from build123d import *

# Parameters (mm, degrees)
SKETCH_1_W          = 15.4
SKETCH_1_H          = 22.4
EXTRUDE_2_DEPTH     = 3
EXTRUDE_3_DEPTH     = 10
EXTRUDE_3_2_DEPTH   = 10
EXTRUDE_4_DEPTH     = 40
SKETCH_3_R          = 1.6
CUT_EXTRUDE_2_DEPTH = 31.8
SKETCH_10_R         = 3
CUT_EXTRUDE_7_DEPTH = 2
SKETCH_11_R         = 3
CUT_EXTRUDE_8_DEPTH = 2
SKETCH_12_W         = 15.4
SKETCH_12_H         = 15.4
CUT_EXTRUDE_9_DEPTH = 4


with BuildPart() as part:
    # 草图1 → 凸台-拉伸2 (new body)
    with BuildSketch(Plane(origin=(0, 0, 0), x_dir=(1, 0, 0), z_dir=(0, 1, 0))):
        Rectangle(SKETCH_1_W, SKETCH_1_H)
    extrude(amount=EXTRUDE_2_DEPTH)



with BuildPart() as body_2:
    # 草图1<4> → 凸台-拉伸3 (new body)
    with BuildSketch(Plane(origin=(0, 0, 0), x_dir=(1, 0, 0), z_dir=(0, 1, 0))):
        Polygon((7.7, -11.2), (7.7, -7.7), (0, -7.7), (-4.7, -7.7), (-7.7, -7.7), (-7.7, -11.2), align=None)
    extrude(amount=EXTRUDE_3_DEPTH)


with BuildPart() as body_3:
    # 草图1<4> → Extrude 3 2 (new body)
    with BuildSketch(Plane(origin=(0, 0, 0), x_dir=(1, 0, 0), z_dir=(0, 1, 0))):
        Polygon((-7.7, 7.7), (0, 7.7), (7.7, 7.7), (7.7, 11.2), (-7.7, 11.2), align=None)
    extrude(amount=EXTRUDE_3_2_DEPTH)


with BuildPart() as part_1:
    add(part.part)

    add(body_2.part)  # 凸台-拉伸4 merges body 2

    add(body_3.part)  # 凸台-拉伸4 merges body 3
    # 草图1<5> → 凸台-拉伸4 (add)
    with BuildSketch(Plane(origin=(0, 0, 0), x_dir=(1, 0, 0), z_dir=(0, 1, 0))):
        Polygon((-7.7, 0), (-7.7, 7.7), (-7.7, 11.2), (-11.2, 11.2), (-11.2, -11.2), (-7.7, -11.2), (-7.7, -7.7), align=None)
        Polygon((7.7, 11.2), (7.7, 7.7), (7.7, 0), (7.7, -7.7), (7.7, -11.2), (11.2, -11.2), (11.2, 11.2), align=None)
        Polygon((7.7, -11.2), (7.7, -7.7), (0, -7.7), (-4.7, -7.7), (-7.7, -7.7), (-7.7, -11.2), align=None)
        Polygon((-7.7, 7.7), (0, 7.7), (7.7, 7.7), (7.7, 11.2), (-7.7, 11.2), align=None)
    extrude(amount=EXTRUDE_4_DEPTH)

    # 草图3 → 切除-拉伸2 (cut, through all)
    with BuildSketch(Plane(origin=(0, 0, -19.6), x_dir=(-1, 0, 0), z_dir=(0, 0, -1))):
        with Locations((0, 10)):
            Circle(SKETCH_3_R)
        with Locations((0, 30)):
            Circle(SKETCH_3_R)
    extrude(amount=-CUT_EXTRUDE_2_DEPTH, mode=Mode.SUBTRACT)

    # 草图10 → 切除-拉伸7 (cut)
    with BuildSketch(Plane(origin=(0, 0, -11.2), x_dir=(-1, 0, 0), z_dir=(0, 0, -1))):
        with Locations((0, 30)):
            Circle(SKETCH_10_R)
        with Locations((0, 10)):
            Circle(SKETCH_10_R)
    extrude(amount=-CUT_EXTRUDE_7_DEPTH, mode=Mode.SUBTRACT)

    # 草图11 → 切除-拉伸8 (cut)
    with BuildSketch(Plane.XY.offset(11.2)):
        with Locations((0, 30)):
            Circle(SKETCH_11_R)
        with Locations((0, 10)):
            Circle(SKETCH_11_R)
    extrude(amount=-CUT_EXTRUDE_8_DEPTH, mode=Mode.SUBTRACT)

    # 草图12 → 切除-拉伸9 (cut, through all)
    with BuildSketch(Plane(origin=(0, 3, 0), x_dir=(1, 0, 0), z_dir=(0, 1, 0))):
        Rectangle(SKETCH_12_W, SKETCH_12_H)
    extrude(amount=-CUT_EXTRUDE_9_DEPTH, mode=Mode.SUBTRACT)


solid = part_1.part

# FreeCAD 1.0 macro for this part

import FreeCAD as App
import Part
import Sketcher


def add_polygon(sketch, points):
    """Adds a closed chain of lines whose ends are joined by coincident constraints."""
    first, n = sketch.GeometryCount, len(points)
    for a, b in zip(points, points[1:] + points[:1]):
        sketch.addGeometry(Part.LineSegment(App.Vector(*a, 0), App.Vector(*b, 0)), False)
    for i in range(n):
        sketch.addConstraint(Sketcher.Constraint("Coincident", first + i, 2, first + (i + 1) % n, 1))

doc = App.newDocument("Part")
body = doc.addObject("PartDesign::Body", "Body")

sketch1 = body.newObject("Sketcher::SketchObject", "Sketch")
sketch1.AttachmentSupport = (doc.getObject("XZ_Plane"), [""])
sketch1.MapMode = "FlatFace"
add_polygon(sketch1, [(-8, -11), (-8, 11), (8, 11), (8, -11)])
sketch1.addConstraint([
    Sketcher.Constraint("Vertical", 0),
    Sketcher.Constraint("Horizontal", 1),
    Sketcher.Constraint("Vertical", 2),
    Sketcher.Constraint("Horizontal", 3),
    Sketcher.Constraint("Symmetric", 0, 2, 2, 2, -1, 1),
    Sketcher.Constraint("DistanceX", 1, 1, 1, 2, 15.4),
    Sketcher.Constraint("DistanceY", 0, 1, 0, 2, 22.4),
])
pad1 = body.newObject("PartDesign::Pad", "Pad")
pad1.Profile = sketch1
pad1.Length = 3
pad1.Reversed = True
body2 = doc.addObject("PartDesign::Body", "Body001")

sketch2 = body2.newObject("Sketcher::SketchObject", "Sketch001")
sketch2.AttachmentSupport = (doc.getObject("XZ_Plane001"), [""])
sketch2.MapMode = "FlatFace"
add_polygon(sketch2, [(7.7, 11.2), (7.7, 7.7), (-7.7, 7.7), (-7.7, 11.2)])
sketch2.addConstraint([
    Sketcher.Constraint("Vertical", 0),
    Sketcher.Constraint("Horizontal", 1),
    Sketcher.Constraint("Vertical", 2),
    Sketcher.Constraint("Horizontal", 3),
    Sketcher.Constraint("DistanceX", 1, 2, 1, 1, 15.4),
    Sketcher.Constraint("DistanceY", 0, 2, 0, 1, 3.5),
    Sketcher.Constraint("DistanceX", -1, 1, 0, 2, 7.7),
    Sketcher.Constraint("DistanceY", -1, 1, 0, 2, 7.7),
])
pad2 = body2.newObject("PartDesign::Pad", "Pad001")
pad2.Profile = sketch2
pad2.Length = 10
pad2.Reversed = True
body3 = doc.addObject("PartDesign::Body", "Body002")

sketch3 = body3.newObject("Sketcher::SketchObject", "Sketch002")
sketch3.AttachmentSupport = (doc.getObject("XZ_Plane002"), [""])
sketch3.MapMode = "FlatFace"
add_polygon(sketch3, [(-7.7, -7.7), (7.7, -7.7), (7.7, -11.2), (-7.7, -11.2)])
sketch3.addConstraint([
    Sketcher.Constraint("Horizontal", 0),
    Sketcher.Constraint("Vertical", 1),
    Sketcher.Constraint("Horizontal", 2),
    Sketcher.Constraint("Vertical", 3),
    Sketcher.Constraint("DistanceX", 0, 1, 0, 2, 15.4),
    Sketcher.Constraint("DistanceY", 1, 2, 1, 1, 3.5),
    Sketcher.Constraint("DistanceX", -1, 1, 0, 2, 7.7),
    Sketcher.Constraint("DistanceY", 0, 2, -1, 1, 7.7),
])
pad3 = body3.newObject("PartDesign::Pad", "Pad002")
pad3.Profile = sketch3
pad3.Length = 10
pad3.Reversed = True
doc.recompute()

boolean = body.newObject("PartDesign::Boolean", "Boolean")
boolean.Type = "Fuse"
boolean.addObjects([body2])
doc.recompute()

boolean2 = body.newObject("PartDesign::Boolean", "Boolean001")
boolean2.Type = "Fuse"
boolean2.addObjects([body3])

sketch4 = body.newObject("Sketcher::SketchObject", "Sketch003")
sketch4.AttachmentSupport = (doc.getObject("XZ_Plane"), [""])
sketch4.MapMode = "FlatFace"
add_polygon(sketch4, [(11, -11), (-11, -11), (-11, 11), (11, 11)])
add_polygon(sketch4, [(8, 8), (-8, 8), (-8, -8), (8, -8)])
sketch4.addConstraint([
    Sketcher.Constraint("Horizontal", 0),
    Sketcher.Constraint("Vertical", 1),
    Sketcher.Constraint("Horizontal", 2),
    Sketcher.Constraint("Vertical", 3),
    Sketcher.Constraint("Horizontal", 4),
    Sketcher.Constraint("Vertical", 5),
    Sketcher.Constraint("Horizontal", 6),
    Sketcher.Constraint("Vertical", 7),
    Sketcher.Constraint("Symmetric", 0, 2, 2, 2, -1, 1),
    Sketcher.Constraint("Symmetric", 4, 2, 6, 2, -1, 1),
    Sketcher.Constraint("Equal", 2, 1),
    Sketcher.Constraint("Equal", 6, 5),
    Sketcher.Constraint("DistanceX", 0, 2, 0, 1, 22.4),
    Sketcher.Constraint("DistanceX", 4, 2, 4, 1, 15.4),
])
pad4 = body.newObject("PartDesign::Pad", "Pad003")
pad4.Profile = sketch4
pad4.Length = 40
pad4.Reversed = True

sketch5 = body.newObject("Sketcher::SketchObject", "Sketch004")
sketch5.AttachmentSupport = (doc.getObject("XY_Plane"), [""])
sketch5.MapMode = "FlatFace"
sketch5.AttachmentOffset = App.Placement(App.Vector(0, 0, -19.6), App.Rotation())
sketch5.addGeometry([
    Part.Circle(App.Vector(0, 10, 0), App.Vector(0, 0, 1), 1.6),
    Part.Circle(App.Vector(0, 30, 0), App.Vector(0, 0, 1), 1.6),
], False)
sketch5.addConstraint([
    Sketcher.Constraint("Equal", 0, 1),
    Sketcher.Constraint("PointOnObject", 0, 3, -2),
    Sketcher.Constraint("PointOnObject", 1, 3, -2),
    Sketcher.Constraint("Diameter", 0, 3.2),
    Sketcher.Constraint("DistanceY", -1, 1, 0, 3, 10.0),
    Sketcher.Constraint("DistanceY", -1, 1, 1, 3, 30.0),
])
pocket1 = body.newObject("PartDesign::Pocket", "Pocket")
pocket1.Profile = sketch5
pocket1.Type = "ThroughAll"
pocket1.Reversed = True

sketch6 = body.newObject("Sketcher::SketchObject", "Sketch005")
sketch6.AttachmentSupport = (doc.getObject("XY_Plane"), [""])
sketch6.MapMode = "FlatFace"
sketch6.AttachmentOffset = App.Placement(App.Vector(0, 0, -11.2), App.Rotation())
sketch6.addGeometry([
    Part.Circle(App.Vector(0, 30, 0), App.Vector(0, 0, 1), 3),
    Part.Circle(App.Vector(0, 10, 0), App.Vector(0, 0, 1), 3),
], False)
sketch6.addConstraint([
    Sketcher.Constraint("Equal", 0, 1),
    Sketcher.Constraint("PointOnObject", 0, 3, -2),
    Sketcher.Constraint("PointOnObject", 1, 3, -2),
    Sketcher.Constraint("Diameter", 0, 6.0),
    Sketcher.Constraint("DistanceY", -1, 1, 0, 3, 30.0),
    Sketcher.Constraint("DistanceY", -1, 1, 1, 3, 10.0),
])
pocket2 = body.newObject("PartDesign::Pocket", "Pocket001")
pocket2.Profile = sketch6
pocket2.Length = 2
pocket2.Reversed = True

sketch7 = body.newObject("Sketcher::SketchObject", "Sketch006")
sketch7.AttachmentSupport = (doc.getObject("XY_Plane"), [""])
sketch7.MapMode = "FlatFace"
sketch7.AttachmentOffset = App.Placement(App.Vector(0, 0, 11.2), App.Rotation())
sketch7.addGeometry([
    Part.Circle(App.Vector(0, 30, 0), App.Vector(0, 0, 1), 3),
    Part.Circle(App.Vector(0, 10, 0), App.Vector(0, 0, 1), 3),
], False)
sketch7.addConstraint([
    Sketcher.Constraint("Equal", 0, 1),
    Sketcher.Constraint("PointOnObject", 0, 3, -2),
    Sketcher.Constraint("PointOnObject", 1, 3, -2),
    Sketcher.Constraint("Diameter", 0, 6.0),
    Sketcher.Constraint("DistanceY", -1, 1, 0, 3, 30.0),
    Sketcher.Constraint("DistanceY", -1, 1, 1, 3, 10.0),
])
pocket3 = body.newObject("PartDesign::Pocket", "Pocket002")
pocket3.Profile = sketch7
pocket3.Length = 2

sketch8 = body.newObject("Sketcher::SketchObject", "Sketch007")
sketch8.AttachmentSupport = (doc.getObject("XZ_Plane"), [""])
sketch8.MapMode = "FlatFace"
sketch8.AttachmentOffset = App.Placement(App.Vector(0, 0, -3), App.Rotation())
add_polygon(sketch8, [(-8, -8), (-8, 8), (8, 8), (8, -8)])
sketch8.addConstraint([
    Sketcher.Constraint("Vertical", 0),
    Sketcher.Constraint("Horizontal", 1),
    Sketcher.Constraint("Vertical", 2),
    Sketcher.Constraint("Horizontal", 3),
    Sketcher.Constraint("Symmetric", 0, 2, 2, 2, -1, 1),
    Sketcher.Constraint("Equal", 3, 0),
    Sketcher.Constraint("DistanceX", 1, 1, 1, 2, 15.4),
])
pocket4 = body.newObject("PartDesign::Pocket", "Pocket003")
pocket4.Profile = sketch8
pocket4.Type = "ThroughAll"
pocket4.Reversed = True

doc.recompute()
